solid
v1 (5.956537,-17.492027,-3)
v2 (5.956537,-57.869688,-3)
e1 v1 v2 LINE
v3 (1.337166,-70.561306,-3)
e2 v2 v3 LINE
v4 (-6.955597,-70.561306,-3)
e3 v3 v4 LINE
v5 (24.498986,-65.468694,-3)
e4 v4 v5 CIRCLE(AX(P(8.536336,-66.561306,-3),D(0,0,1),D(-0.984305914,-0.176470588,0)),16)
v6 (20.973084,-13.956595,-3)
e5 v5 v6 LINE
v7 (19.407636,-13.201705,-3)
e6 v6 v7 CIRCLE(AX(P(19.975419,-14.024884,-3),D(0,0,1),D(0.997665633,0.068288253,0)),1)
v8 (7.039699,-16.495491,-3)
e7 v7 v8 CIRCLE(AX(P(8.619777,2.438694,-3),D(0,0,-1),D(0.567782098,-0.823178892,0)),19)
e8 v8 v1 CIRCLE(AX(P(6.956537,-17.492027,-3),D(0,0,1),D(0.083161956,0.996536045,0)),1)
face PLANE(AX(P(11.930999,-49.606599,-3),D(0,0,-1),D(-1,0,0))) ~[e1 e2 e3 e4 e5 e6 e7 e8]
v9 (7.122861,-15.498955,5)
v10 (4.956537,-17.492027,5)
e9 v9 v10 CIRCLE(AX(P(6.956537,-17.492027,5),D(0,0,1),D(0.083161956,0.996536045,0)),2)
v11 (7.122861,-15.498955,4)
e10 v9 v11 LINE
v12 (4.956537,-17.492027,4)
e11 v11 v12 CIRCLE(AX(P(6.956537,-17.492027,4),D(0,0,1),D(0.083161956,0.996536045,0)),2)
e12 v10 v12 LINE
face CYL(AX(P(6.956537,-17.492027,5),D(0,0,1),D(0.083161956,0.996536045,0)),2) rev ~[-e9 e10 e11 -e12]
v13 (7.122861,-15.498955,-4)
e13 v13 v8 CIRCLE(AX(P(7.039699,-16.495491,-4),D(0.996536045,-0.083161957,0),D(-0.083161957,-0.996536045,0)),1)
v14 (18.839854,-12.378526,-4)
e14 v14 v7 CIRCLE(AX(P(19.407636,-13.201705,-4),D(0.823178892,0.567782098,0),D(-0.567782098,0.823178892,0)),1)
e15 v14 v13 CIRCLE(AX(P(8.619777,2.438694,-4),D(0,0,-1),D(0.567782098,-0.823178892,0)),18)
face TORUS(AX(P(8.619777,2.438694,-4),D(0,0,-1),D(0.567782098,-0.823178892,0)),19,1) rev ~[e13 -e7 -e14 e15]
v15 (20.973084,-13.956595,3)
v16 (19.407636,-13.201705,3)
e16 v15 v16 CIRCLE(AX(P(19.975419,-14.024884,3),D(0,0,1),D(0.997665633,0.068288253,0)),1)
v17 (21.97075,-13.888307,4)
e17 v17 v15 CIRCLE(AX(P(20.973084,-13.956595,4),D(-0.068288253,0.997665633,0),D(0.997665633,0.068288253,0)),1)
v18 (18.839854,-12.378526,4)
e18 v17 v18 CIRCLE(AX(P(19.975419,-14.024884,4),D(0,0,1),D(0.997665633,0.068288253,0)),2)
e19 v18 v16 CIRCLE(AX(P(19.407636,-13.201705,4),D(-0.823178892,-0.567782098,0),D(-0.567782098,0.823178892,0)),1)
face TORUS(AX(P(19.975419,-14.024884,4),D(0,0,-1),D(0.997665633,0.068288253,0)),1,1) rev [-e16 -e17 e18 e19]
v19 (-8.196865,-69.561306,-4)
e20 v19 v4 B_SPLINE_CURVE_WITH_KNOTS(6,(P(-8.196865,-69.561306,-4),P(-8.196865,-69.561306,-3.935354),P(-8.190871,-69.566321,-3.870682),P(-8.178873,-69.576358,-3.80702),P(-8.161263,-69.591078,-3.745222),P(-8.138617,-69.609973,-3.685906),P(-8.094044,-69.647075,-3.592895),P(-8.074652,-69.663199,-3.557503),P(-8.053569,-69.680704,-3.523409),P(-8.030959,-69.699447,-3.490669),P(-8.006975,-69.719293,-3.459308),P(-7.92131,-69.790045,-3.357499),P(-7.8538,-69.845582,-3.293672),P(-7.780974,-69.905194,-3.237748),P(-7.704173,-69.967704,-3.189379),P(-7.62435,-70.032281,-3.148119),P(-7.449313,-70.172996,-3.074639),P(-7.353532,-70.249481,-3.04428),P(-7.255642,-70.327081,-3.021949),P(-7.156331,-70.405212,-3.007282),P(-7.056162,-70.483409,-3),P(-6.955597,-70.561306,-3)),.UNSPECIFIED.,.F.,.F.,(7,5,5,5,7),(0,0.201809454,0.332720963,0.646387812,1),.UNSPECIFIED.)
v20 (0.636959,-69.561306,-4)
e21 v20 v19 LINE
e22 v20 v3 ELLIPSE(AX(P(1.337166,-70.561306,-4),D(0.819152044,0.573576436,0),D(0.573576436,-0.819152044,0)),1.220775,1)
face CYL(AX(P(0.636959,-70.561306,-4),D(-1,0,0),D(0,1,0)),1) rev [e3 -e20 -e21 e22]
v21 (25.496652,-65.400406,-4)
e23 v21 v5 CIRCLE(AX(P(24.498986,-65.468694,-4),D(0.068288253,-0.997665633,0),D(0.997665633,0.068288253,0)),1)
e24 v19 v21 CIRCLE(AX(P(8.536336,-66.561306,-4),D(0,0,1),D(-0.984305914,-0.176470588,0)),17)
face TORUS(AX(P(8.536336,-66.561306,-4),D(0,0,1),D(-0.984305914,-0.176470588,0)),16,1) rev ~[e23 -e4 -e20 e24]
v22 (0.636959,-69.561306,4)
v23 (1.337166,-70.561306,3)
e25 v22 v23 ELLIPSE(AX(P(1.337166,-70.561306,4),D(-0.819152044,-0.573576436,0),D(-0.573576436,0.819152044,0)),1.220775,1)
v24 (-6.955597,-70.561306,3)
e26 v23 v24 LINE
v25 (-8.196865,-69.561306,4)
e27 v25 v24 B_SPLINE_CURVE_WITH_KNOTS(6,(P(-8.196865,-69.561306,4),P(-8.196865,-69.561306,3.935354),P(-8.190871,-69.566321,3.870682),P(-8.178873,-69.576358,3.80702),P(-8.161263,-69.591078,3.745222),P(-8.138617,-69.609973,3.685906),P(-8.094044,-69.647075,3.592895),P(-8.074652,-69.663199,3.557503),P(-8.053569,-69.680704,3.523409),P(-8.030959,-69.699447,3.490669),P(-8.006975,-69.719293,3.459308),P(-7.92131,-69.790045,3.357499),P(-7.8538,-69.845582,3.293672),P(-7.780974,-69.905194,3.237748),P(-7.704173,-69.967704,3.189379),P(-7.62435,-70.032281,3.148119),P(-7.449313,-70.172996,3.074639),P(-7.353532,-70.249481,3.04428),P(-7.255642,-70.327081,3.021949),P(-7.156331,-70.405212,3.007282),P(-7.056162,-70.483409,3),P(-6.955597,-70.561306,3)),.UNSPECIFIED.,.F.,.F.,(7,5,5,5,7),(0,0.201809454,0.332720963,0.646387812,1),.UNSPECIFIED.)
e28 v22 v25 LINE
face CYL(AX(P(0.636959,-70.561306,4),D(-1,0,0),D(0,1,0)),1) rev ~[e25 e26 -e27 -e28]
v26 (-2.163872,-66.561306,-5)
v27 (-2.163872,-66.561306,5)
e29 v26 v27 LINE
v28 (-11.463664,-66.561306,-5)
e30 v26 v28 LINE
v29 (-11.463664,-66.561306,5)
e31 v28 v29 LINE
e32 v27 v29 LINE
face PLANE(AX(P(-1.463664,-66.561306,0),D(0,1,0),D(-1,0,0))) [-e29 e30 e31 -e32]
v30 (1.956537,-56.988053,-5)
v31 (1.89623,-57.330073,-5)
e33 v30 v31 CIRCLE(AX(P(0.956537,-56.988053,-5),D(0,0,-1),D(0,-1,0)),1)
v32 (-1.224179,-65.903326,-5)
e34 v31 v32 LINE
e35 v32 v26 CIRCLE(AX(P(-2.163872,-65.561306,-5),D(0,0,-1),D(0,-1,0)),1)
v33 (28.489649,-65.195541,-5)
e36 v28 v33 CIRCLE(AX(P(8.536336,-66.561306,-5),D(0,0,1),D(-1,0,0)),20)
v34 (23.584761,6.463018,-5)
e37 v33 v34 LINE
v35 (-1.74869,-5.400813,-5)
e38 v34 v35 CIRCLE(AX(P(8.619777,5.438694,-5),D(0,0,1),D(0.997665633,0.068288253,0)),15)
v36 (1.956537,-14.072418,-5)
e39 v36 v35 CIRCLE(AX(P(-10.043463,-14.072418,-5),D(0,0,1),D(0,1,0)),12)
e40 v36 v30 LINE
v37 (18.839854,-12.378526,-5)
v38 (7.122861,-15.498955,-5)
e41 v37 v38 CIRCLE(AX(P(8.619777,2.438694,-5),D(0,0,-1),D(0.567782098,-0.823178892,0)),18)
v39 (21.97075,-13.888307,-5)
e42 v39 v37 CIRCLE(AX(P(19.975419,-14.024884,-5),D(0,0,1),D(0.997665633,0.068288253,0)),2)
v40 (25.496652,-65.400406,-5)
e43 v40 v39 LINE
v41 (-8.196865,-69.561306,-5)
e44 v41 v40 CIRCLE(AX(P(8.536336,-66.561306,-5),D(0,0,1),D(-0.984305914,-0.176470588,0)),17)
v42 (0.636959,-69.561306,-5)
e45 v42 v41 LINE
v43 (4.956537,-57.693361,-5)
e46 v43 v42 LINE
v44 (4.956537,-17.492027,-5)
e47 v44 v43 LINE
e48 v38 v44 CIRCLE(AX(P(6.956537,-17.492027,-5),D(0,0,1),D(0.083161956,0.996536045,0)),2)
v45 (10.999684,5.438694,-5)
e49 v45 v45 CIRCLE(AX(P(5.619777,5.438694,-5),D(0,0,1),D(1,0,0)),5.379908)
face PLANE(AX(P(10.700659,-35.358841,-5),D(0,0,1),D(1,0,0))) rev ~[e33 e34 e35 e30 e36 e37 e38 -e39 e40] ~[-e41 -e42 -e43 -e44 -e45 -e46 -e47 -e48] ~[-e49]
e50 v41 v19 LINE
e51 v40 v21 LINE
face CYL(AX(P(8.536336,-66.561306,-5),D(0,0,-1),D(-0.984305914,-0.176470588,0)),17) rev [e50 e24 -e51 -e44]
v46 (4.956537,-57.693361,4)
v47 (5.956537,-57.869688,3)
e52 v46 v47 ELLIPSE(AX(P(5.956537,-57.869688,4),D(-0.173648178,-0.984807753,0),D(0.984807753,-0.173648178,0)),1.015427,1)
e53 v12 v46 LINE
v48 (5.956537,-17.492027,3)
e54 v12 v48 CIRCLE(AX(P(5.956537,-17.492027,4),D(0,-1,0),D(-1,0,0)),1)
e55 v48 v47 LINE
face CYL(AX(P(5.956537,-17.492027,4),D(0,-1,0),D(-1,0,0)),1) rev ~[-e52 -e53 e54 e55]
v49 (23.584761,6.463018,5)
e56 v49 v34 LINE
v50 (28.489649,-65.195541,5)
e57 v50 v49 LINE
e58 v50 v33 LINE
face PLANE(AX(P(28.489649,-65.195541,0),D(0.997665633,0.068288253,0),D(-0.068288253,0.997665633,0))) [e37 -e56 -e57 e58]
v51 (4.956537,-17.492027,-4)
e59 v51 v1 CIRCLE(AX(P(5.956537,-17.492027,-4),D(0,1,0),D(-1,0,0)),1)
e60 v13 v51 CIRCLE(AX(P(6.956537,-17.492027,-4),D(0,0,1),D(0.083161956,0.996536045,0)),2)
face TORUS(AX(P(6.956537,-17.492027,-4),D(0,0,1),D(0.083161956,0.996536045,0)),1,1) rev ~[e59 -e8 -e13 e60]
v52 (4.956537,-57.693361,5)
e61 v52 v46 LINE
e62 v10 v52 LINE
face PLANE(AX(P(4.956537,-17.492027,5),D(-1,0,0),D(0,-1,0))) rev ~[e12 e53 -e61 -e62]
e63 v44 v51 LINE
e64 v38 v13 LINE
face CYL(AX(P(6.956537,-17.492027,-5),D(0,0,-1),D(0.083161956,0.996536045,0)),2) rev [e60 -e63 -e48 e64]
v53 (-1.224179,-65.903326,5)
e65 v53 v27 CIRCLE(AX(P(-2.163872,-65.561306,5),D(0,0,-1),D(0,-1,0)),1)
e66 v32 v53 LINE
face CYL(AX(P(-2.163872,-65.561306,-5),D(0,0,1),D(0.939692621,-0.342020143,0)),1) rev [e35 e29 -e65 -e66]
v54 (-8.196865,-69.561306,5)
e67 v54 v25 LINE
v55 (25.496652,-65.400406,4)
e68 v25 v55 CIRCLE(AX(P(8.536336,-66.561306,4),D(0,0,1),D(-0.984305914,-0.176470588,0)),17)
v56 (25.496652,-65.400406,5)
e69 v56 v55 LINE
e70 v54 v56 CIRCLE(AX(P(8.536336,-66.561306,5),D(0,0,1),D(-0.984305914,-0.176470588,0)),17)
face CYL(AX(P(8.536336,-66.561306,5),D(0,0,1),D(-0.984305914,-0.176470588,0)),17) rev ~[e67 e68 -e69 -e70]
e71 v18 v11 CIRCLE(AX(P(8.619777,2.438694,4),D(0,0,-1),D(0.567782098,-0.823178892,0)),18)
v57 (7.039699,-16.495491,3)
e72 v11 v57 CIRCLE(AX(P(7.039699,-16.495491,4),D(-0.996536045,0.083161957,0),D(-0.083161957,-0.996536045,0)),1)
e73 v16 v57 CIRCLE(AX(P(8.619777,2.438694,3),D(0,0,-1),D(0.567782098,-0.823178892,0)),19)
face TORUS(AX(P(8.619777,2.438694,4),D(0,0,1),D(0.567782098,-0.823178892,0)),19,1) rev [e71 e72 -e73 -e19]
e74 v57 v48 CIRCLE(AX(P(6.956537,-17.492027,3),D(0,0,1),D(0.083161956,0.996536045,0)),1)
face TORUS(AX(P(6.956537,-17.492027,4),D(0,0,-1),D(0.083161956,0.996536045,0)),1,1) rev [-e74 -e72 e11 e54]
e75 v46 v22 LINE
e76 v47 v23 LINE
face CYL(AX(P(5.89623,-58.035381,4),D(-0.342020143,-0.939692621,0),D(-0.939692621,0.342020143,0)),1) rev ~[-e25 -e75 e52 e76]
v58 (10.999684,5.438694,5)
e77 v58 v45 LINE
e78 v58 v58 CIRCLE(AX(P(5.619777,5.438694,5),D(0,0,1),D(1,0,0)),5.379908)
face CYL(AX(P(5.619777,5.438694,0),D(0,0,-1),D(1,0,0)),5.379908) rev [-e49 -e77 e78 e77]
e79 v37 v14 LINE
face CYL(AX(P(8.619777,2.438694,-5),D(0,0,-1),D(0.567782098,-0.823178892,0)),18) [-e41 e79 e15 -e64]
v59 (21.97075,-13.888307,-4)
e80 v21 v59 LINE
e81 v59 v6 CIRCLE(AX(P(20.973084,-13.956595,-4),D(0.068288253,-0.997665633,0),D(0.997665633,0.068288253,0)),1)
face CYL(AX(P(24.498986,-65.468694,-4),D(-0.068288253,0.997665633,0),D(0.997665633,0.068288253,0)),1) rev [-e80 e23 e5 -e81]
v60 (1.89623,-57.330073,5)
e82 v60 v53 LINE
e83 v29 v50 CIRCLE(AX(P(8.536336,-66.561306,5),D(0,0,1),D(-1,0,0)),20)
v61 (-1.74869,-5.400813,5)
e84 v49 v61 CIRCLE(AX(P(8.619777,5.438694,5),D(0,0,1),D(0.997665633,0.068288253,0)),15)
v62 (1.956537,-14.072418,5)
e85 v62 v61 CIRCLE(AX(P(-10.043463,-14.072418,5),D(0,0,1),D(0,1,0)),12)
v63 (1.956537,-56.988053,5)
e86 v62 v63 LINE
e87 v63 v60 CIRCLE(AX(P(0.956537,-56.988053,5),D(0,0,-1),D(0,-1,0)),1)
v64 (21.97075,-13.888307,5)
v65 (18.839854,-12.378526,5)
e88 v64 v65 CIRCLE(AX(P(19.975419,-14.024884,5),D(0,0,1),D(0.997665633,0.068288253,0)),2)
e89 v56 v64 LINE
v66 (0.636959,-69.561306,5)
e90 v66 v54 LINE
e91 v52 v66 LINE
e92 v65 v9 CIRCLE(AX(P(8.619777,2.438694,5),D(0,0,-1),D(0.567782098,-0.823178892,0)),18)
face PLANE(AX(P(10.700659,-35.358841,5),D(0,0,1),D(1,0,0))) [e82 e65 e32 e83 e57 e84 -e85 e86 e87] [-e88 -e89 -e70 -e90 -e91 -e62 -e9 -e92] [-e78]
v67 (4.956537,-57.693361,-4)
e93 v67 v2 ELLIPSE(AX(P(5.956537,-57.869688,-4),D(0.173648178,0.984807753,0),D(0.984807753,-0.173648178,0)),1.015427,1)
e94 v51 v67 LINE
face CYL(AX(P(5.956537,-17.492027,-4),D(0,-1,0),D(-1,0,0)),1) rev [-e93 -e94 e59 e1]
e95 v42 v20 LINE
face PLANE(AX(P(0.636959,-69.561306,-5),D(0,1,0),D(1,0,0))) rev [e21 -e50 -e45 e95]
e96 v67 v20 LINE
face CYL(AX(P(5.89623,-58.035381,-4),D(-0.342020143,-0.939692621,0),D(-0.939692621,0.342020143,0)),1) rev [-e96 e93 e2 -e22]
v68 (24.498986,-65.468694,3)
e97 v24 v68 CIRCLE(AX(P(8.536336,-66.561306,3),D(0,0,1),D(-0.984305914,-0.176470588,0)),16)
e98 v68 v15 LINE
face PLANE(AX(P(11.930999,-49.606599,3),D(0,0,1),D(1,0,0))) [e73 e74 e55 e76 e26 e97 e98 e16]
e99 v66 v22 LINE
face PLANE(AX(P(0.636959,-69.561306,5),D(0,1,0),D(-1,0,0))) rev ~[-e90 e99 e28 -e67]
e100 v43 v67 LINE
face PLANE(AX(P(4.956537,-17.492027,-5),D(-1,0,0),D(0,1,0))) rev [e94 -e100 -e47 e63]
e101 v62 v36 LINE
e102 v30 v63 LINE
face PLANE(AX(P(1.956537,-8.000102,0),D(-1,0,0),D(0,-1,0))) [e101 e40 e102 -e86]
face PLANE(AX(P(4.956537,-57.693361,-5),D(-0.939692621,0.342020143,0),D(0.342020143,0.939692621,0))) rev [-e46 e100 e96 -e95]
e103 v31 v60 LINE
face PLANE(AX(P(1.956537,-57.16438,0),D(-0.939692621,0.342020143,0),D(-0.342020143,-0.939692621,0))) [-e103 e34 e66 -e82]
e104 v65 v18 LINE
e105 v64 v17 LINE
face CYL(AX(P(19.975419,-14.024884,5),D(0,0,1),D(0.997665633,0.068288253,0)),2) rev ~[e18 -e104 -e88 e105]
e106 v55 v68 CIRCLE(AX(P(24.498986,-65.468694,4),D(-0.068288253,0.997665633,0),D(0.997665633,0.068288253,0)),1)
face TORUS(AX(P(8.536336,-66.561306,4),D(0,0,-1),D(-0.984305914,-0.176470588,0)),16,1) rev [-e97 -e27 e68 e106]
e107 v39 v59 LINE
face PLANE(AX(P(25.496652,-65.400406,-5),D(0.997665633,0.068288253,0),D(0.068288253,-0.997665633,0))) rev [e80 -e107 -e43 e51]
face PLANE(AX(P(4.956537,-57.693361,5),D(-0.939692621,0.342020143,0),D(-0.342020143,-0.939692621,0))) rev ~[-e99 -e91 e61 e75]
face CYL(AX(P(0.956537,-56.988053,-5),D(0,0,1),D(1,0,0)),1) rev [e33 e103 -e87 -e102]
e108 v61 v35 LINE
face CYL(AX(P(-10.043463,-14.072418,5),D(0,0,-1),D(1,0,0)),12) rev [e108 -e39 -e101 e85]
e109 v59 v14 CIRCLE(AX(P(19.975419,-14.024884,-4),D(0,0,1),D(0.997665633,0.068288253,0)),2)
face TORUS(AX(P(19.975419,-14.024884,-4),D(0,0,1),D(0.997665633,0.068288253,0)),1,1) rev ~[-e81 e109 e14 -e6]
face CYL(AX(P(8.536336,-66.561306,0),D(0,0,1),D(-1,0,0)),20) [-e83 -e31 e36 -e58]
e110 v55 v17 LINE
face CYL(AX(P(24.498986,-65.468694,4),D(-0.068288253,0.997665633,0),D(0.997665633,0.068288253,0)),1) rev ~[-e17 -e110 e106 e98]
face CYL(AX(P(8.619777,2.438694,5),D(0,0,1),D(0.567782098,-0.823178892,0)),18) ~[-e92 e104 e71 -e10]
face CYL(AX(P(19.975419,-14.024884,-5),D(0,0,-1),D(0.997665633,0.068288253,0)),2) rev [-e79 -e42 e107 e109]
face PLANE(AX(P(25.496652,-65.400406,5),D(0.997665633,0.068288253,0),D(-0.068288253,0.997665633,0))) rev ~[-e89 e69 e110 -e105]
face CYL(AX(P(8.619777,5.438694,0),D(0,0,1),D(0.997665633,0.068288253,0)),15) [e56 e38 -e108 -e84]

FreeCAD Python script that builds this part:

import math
import FreeCAD as App
import Part
import Sketcher
from FreeCAD import Vector
Q = App.Units.Quantity


def edges_at(feature, points):
    """Names of the edges that pass closest to the given points."""
    edges = feature.Shape.Edges
    near = lambda p: min(range(len(edges)), key=lambda i: edges[i].distToShape(Part.Vertex(*p))[0])
    return sorted({f"Edge{near(p) + 1}" for p in points})

doc = App.newDocument("Part")
body = doc.addObject("PartDesign::Body", "Body")

# Sketch on XY plane
sketch1 = body.newObject("Sketcher::SketchObject", "Sketch")
sketch1.AttachmentSupport = (doc.getObject("XY_Plane"), [""])
sketch1.MapMode = "FlatFace"
sketch1.addGeometry(Part.LineSegment(Vector(2, -8, 0), Vector(2, -57, 0)), False)
sketch1.addGeometry(Part.LineSegment(Vector(2, -57, 0), Vector(-1, -67, 0)), False)
sketch1.addGeometry(Part.LineSegment(Vector(-1, -67, 0), Vector(-11, -67, 0)), False)
sketch1.addGeometry(Part.ArcOfCircle(Part.Circle(Vector(9, -67, 0), Vector(0, 0, 1), 20), math.radians(180), math.radians(364)), False)
sketch1.addGeometry(Part.LineSegment(Vector(28, -65, 0), Vector(24, 6, 0)), False)
sketch1.addGeometry(Part.ArcOfCircle(Part.Circle(Vector(9, 5, 0), Vector(0, 0, 1), 15), math.radians(4), math.radians(244)), False)
sketch1.addGeometry(Part.Circle(Vector(6, 5, 0), Vector(0, 0, 1), 5), False)
sketch1.addConstraint(Sketcher.Constraint("Coincident", 0, 2, 1, 1))
sketch1.addConstraint(Sketcher.Constraint("Coincident", 1, 2, 2, 1))
sketch1.addConstraint(Sketcher.Constraint("Coincident", 2, 2, 3, 1))
sketch1.addConstraint(Sketcher.Constraint("Tangent", 3, 2, 4, 1))
sketch1.addConstraint(Sketcher.Constraint("Tangent", 4, 2, 5, 1))
sketch1.addConstraint(Sketcher.Constraint("Coincident", 5, 2, 0, 1))
sketch1.addConstraint(Sketcher.Constraint("Vertical", 0))
sketch1.addConstraint(Sketcher.Constraint("Horizontal", 2))
sketch1.addConstraint(Sketcher.Constraint("Horizontal", 5, 3, 6, 3))
sketch1.addConstraint(Sketcher.Constraint("Horizontal", 3, 3, 1, 2))
sketch1.addConstraint(Sketcher.Constraint("Radius", 3, Q("20 mm")))
sketch1.addConstraint(Sketcher.Constraint("Radius", 5, Q("15 mm")))
sketch1.addConstraint(Sketcher.Constraint("DistanceX", 2, 2, 2, 1, Q("10 mm")))
sketch1.addConstraint(Sketcher.Constraint("Angle", 1, Q("-110 deg")))
sketch1.addConstraint(Sketcher.Constraint("Distance", 1, Q("10 mm")))
sketch1.addConstraint(Sketcher.Constraint("DistanceY", 3, 3, 5, 3, Q("72 mm")))
sketch1.addConstraint(Sketcher.Constraint("DistanceX", 6, 3, 5, 3, Q("3 mm")))
sketch1.addConstraint(Sketcher.Constraint("Diameter", 6, Q("10.759815 mm")))
sketch1.addConstraint(Sketcher.Constraint("DistanceY", 0, 2, 0, 1, Q("49.164278 mm")))
sketch1.addConstraint(Sketcher.Constraint("DistanceY", 0, 2, -1, 1, Q("57.16438 mm")))
sketch1.addConstraint(Sketcher.Constraint("DistanceX", -1, 1, 3, 2, Q("28.489649 mm")))
pad1 = body.newObject("PartDesign::Pad", "Pad")
pad1.Profile = sketch1
pad1.Length = 10
pad1.Midplane = True

# Sketch on XY plane
sketch2 = body.newObject("Sketcher::SketchObject", "Sketch001")
sketch2.AttachmentSupport = (doc.getObject("XY_Plane"), [""])
sketch2.MapMode = "FlatFace"
sketch2.AttachmentOffset = App.Placement(Vector(0, 0, 5), App.Rotation())
sketch2.addGeometry(Part.LineSegment(Vector(5, -17.5, 0), Vector(5, -57.7, 0)), False)
sketch2.addGeometry(Part.LineSegment(Vector(5, -57.7, 0), Vector(0.6, -69.6, 0)), False)
sketch2.addGeometry(Part.LineSegment(Vector(0.6, -69.6, 0), Vector(-8.2, -69.6, 0)), False)
sketch2.addGeometry(Part.ArcOfCircle(Part.Circle(Vector(8.5, -66.6, 0), Vector(0, 0, 1), 17), math.radians(-170), math.radians(4)), False)
sketch2.addGeometry(Part.LineSegment(Vector(25.5, -65.4, 0), Vector(22, -13.9, 0)), False)
sketch2.addGeometry(Part.ArcOfCircle(Part.Circle(Vector(20, -14, 0), Vector(0, 0, 1), 2), math.radians(4), math.radians(125)), False)
sketch2.addGeometry(Part.ArcOfCircle(Part.Circle(Vector(8.6, 2.4, 0), Vector(0, 0, 1), 18), math.radians(-95), math.radians(-55)), False)
sketch2.addGeometry(Part.ArcOfCircle(Part.Circle(Vector(7, -17.5, 0), Vector(0, 0, 1), 2), math.radians(85), math.radians(180)), False)
sketch2.addConstraint(Sketcher.Constraint("Coincident", 0, 2, 1, 1))
sketch2.addConstraint(Sketcher.Constraint("Coincident", 1, 2, 2, 1))
sketch2.addConstraint(Sketcher.Constraint("Coincident", 2, 2, 3, 1))
sketch2.addConstraint(Sketcher.Constraint("Tangent", 3, 2, 4, 1))
sketch2.addConstraint(Sketcher.Constraint("Tangent", 4, 2, 5, 1))
sketch2.addConstraint(Sketcher.Constraint("Tangent", 5, 2, 6, 2))
sketch2.addConstraint(Sketcher.Constraint("Tangent", 6, 1, 7, 1))
sketch2.addConstraint(Sketcher.Constraint("Tangent", 7, 2, 0, 1))
sketch2.addConstraint(Sketcher.Constraint("Vertical", 0))
sketch2.addConstraint(Sketcher.Constraint("Horizontal", 2))
sketch2.addConstraint(Sketcher.Constraint("Equal", 5, 7))
sketch2.addConstraint(Sketcher.Constraint("Radius", 3, Q("17 mm")))
sketch2.addConstraint(Sketcher.Constraint("Radius", 5, Q("2 mm")))
sketch2.addConstraint(Sketcher.Constraint("Radius", 6, Q("18 mm")))
sketch2.addConstraint(Sketcher.Constraint("Angle", 1, Q("-110 deg")))
sketch2.addConstraint(Sketcher.Constraint("DistanceY", 3, 3, 6, 3, Q("69 mm")))
sketch2.addConstraint(Sketcher.Constraint("DistanceY", 1, 2, 3, 3, Q("3 mm")))
sketch2.addConstraint(Sketcher.Constraint("DistanceY", 4, 2, 6, 3, Q("16.327001 mm")))
sketch2.addConstraint(Sketcher.Constraint("DistanceX", 7, 3, 3, 3, Q("1.579799 mm")))
sketch2.addConstraint(Sketcher.Constraint("DistanceY", 3, 3, 3, 2, Q("1.1609 mm")))
sketch2.addConstraint(Sketcher.Constraint("DistanceX", 2, 2, 2, 1, Q("8.833823 mm")))
sketch2.addConstraint(Sketcher.Constraint("DistanceX", -1, 1, 5, 3, Q("19.975419 mm")))
sketch2.addConstraint(Sketcher.Constraint("DistanceY", 0, 2, -1, 1, Q("57.693361 mm")))
pocket1 = body.newObject("PartDesign::Pocket", "Pocket")
pocket1.Profile = sketch2
pocket1.Length = 2
doc.recompute()

mirrored = body.newObject("PartDesign::Mirrored", "Mirrored")
mirrored.Originals = [pocket1]
mirrored.MirrorPlane = (doc.getObject("XY_Plane"), [""])
body.Tip = mirrored
doc.recompute()

fillet = body.newObject("PartDesign::Fillet", "Fillet")
fillet.Base = (mirrored, edges_at(mirrored, [
    (1.957, -57.164, 0),
    (-1.464, -66.561, 0),
    (13.252, -14.955, 3),
    (20.844, -12.223, 3),
    (23.734, -39.644, 3),
    (10.62, -83.433, 3),
    (-3.78, -69.561, 3),
    (2.797, -63.627, 3),
    (4.957, -37.593, 3),
    (5.602, -16.02, 3),
    (13.252, -14.955, -3),
    (5.602, -16.02, -3),
    (4.957, -37.593, -3),
    (2.797, -63.627, -3),
    (-3.78, -69.561, -3),
    (10.62, -83.433, -3),
    (23.734, -39.644, -3),
    (20.844, -12.223, -3),
]))
fillet.Radius = 1
doc.recompute()

fillet2 = body.newObject("PartDesign::Fillet", "Fillet001")
fillet2.Base = (fillet, edges_at(fillet, [(1.957, -8, 0)]))
fillet2.Radius = 12

doc.recompute()
